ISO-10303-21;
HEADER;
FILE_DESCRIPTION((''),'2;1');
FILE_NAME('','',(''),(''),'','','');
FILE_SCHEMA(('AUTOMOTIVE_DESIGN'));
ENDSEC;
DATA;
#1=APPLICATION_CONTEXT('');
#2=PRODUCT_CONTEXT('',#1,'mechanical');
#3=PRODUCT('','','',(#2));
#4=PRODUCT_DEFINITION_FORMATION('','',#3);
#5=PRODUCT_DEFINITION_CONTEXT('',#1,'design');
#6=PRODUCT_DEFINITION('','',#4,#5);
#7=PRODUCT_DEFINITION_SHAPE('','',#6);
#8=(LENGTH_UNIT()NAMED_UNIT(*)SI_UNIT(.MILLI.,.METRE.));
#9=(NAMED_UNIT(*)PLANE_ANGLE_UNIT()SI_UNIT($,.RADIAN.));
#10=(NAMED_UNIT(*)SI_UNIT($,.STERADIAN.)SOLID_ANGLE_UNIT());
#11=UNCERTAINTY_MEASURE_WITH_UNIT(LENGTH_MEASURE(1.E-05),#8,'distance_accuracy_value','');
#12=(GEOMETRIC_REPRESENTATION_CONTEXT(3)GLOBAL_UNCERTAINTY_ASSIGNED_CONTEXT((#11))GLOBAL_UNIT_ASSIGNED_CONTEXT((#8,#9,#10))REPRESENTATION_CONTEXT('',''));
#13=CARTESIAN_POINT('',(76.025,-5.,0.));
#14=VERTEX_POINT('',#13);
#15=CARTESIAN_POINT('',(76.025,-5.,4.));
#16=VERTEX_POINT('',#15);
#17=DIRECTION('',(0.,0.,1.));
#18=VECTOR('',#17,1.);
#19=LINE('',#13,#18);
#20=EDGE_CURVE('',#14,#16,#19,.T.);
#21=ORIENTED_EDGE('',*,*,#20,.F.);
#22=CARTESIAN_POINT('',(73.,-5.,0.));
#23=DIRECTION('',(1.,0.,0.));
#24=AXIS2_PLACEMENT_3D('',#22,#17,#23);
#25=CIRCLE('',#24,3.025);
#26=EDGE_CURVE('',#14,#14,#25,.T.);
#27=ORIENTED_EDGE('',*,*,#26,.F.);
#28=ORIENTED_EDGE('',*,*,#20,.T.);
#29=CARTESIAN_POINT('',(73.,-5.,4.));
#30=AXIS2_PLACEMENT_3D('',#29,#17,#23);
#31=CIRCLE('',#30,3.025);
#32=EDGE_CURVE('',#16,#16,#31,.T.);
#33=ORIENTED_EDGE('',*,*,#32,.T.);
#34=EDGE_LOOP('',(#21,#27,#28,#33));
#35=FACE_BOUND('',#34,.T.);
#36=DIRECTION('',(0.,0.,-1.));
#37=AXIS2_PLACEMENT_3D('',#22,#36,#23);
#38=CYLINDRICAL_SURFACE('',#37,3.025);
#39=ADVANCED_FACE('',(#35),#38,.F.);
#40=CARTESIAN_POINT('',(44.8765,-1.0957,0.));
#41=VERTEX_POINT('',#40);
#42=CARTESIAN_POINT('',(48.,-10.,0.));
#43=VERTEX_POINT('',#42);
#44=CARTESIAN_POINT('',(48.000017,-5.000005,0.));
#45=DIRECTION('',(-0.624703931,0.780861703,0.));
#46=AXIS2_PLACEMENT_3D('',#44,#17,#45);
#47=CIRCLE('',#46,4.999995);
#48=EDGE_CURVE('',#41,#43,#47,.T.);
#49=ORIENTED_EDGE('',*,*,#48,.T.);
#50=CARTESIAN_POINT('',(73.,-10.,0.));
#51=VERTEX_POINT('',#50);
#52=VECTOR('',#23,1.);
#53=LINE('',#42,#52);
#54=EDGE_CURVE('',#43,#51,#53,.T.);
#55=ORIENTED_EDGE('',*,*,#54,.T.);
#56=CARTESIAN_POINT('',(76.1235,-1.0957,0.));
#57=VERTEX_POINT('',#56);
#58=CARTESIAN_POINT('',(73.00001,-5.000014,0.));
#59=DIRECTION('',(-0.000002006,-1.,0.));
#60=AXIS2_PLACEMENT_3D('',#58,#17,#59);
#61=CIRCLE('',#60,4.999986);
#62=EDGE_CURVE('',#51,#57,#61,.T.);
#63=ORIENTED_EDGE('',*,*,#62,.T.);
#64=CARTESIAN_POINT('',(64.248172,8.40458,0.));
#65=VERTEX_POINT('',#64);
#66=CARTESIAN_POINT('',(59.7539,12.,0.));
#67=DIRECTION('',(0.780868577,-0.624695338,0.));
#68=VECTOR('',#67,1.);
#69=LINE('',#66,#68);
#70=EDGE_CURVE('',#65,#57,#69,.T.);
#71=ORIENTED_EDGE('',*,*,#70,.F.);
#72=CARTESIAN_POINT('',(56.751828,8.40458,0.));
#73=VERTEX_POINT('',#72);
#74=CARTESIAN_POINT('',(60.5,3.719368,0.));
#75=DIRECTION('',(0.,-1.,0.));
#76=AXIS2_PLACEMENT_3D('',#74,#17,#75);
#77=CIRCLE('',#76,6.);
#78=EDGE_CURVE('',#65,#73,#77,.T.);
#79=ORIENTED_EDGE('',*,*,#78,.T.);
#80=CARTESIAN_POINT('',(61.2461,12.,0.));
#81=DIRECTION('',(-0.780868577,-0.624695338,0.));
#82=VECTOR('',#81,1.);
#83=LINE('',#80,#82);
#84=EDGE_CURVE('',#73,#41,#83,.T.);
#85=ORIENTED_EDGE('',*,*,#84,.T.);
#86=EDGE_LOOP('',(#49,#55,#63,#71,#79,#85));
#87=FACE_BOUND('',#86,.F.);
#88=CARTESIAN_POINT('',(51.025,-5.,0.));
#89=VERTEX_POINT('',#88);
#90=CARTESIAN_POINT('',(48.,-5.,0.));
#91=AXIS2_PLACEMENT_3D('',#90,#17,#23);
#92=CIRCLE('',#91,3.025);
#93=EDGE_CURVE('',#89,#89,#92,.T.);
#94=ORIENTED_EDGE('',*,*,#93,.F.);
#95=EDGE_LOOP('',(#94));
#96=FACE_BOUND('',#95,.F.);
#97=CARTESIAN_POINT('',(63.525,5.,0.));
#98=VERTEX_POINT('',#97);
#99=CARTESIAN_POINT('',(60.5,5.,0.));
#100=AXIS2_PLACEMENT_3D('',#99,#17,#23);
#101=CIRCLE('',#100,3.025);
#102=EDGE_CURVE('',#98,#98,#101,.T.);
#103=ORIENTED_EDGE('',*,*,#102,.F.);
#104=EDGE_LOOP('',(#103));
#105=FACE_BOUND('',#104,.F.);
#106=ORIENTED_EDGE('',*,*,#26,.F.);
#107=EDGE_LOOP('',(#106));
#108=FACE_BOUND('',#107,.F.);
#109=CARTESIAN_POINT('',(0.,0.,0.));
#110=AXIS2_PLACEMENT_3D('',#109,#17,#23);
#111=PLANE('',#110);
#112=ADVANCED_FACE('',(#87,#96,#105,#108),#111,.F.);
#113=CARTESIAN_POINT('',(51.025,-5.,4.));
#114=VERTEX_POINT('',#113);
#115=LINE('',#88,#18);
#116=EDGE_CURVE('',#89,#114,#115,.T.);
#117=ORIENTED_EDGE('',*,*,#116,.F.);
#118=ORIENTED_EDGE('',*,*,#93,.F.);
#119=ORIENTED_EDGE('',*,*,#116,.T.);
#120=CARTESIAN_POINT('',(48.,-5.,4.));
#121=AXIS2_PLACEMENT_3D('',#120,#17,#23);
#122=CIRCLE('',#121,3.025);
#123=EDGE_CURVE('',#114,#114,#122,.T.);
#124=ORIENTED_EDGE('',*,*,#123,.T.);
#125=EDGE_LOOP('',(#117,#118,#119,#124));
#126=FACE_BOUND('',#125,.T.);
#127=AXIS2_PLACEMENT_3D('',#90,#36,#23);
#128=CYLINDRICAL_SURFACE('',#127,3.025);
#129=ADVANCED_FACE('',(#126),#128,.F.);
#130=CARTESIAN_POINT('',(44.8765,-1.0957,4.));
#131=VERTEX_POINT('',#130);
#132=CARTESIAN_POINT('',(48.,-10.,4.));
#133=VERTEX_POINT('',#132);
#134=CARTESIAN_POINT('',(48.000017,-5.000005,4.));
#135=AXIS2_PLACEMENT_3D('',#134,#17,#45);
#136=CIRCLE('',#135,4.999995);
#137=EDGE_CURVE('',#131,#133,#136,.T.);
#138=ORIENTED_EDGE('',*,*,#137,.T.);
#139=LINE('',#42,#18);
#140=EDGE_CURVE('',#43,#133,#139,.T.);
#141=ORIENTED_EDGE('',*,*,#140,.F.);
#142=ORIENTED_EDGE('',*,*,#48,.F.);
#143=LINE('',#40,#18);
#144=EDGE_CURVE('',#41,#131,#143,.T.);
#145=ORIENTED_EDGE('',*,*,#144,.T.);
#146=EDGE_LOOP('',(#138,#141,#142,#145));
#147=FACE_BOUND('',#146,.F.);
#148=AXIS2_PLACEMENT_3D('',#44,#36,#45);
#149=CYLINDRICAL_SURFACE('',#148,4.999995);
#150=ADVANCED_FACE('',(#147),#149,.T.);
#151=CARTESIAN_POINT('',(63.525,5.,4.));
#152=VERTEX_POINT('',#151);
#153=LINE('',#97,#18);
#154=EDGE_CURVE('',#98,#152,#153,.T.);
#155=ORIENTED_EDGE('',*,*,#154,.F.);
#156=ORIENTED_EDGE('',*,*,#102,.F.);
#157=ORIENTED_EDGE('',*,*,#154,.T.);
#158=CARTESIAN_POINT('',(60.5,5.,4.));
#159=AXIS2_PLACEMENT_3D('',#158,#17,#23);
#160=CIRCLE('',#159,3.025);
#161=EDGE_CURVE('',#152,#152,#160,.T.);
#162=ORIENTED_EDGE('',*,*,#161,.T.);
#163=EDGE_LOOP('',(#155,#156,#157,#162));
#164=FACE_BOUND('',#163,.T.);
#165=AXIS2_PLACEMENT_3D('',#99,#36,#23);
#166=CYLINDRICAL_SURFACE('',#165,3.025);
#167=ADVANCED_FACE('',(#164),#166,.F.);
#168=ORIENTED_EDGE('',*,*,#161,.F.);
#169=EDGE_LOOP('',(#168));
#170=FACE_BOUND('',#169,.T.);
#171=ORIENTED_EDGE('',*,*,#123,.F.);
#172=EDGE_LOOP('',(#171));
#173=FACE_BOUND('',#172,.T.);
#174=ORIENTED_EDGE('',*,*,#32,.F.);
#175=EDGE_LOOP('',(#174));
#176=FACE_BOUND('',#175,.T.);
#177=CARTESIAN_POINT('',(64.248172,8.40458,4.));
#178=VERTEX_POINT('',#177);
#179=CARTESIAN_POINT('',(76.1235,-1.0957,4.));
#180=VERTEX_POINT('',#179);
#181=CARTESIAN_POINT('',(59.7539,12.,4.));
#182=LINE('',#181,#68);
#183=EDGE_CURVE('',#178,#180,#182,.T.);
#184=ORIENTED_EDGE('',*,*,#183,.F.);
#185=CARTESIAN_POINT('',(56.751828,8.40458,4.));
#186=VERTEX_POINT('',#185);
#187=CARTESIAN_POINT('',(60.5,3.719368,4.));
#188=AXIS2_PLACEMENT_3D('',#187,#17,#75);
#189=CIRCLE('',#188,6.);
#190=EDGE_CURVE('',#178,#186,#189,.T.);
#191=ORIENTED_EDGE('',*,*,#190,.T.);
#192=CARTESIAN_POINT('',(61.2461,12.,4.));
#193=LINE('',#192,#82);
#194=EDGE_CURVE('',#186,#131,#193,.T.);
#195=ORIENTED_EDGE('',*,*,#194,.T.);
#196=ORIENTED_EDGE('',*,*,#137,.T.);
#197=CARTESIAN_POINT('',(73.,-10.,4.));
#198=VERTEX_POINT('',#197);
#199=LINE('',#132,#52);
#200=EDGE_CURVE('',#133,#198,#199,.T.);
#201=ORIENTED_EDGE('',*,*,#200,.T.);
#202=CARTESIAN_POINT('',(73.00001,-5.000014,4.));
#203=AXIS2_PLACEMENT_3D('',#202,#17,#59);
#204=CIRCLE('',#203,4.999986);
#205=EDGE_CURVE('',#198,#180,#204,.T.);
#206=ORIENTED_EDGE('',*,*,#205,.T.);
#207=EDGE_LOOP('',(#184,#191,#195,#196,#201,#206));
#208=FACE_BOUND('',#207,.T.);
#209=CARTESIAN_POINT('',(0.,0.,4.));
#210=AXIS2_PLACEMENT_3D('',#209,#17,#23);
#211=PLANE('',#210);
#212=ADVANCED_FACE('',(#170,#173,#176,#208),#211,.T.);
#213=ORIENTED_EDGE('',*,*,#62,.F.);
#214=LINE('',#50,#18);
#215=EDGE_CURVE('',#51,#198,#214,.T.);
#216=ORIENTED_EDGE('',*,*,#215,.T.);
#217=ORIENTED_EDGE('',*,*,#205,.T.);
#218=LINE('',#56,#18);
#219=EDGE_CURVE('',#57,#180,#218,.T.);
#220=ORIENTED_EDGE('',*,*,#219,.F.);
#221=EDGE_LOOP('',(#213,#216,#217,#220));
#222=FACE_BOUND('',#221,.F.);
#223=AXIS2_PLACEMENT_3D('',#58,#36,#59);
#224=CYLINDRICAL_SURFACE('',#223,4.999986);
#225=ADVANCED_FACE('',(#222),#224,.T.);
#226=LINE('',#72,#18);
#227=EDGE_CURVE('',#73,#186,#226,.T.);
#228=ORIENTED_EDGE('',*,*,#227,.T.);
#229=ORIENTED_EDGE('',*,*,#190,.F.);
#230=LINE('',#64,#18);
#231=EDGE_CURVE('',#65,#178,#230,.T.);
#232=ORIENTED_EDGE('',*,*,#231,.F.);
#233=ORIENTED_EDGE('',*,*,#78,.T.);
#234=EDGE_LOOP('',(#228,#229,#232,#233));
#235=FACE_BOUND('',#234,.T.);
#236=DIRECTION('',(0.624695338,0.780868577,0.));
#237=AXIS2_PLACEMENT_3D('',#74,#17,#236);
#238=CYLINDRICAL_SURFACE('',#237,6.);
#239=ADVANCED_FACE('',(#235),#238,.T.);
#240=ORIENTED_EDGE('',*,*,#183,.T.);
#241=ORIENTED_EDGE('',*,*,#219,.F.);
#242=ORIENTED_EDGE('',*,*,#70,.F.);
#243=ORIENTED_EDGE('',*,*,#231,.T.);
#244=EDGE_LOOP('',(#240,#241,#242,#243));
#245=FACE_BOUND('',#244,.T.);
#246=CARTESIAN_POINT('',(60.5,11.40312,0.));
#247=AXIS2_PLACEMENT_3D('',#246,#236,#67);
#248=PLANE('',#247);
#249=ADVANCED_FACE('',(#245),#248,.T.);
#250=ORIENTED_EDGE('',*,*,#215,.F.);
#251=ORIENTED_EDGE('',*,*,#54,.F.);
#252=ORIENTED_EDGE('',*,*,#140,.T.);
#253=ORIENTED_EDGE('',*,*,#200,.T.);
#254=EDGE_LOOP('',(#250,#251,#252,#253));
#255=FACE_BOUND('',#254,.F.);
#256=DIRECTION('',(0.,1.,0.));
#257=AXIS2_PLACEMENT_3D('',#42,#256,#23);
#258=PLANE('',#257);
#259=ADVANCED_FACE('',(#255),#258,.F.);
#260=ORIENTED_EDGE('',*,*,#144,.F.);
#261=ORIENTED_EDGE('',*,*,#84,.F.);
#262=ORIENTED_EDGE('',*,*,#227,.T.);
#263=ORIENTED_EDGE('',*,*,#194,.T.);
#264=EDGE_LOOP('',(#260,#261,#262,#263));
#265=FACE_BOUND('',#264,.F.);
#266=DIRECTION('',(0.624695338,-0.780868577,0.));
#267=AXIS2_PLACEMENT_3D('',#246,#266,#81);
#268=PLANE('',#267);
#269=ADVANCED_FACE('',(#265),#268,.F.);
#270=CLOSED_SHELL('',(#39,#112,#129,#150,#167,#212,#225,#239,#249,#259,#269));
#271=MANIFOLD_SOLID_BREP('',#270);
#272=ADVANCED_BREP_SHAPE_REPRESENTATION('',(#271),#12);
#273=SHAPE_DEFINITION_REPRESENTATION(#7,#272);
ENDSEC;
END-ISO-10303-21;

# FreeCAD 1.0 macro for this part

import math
import FreeCAD as App
import Part
import Sketcher
from FreeCAD import Vector
Q = App.Units.Quantity


def edges_at(feature, points):
    """Names of the edges that pass closest to the given points."""
    edges = feature.Shape.Edges
    near = lambda p: min(range(len(edges)), key=lambda i: edges[i].distToShape(Part.Vertex(*p))[0])
    return sorted({f"Edge{near(p) + 1}" for p in points})

doc = App.newDocument("Part")
body = doc.addObject("PartDesign::Body", "Body")

# Sketch on XY plane
sketch1 = doc.addObject("Sketcher::SketchObject", "Sketch")
body.addObject(sketch1)
sketch1.AttachmentSupport = (doc.XY_Plane, [""])
sketch1.MapMode = "FlatFace"
sketch1.addGeometry([
    Part.LineSegment(Vector(76.1, -1.1, 0), Vector(60.5, 11.4, 0)),  # 0
    Part.LineSegment(Vector(60.5, 11.4, 0), Vector(44.9, -1.1, 0)),  # 1
    Part.ArcOfCircle(Part.Circle(Vector(48, -5, 0), Vector(0, 0, 1), 5), math.radians(129), math.radians(270)),  # 2
    Part.LineSegment(Vector(48, -10, 0), Vector(73, -10, 0)),  # 3
    Part.ArcOfCircle(Part.Circle(Vector(73, -5, 0), Vector(0, 0, 1), 5), math.radians(-90), math.radians(51)),  # 4
    Part.Circle(Vector(48, -5, 0), Vector(0, 0, 1), 3),  # 5
    Part.Circle(Vector(73, -5, 0), Vector(0, 0, 1), 3),  # 6
    Part.Circle(Vector(60.5, 5, 0), Vector(0, 0, 1), 3),  # 7
], False)
sketch1.addConstraint([
    Sketcher.Constraint("Coincident", 0, 2, 1, 1),
    Sketcher.Constraint("Tangent", 1, 2, 2, 1),
    Sketcher.Constraint("Tangent", 2, 2, 3, 1),
    Sketcher.Constraint("Tangent", 3, 2, 4, 1),
    Sketcher.Constraint("Tangent", 4, 2, 0, 1),
    Sketcher.Constraint("Horizontal", 3),
    Sketcher.Constraint("Coincident", 5, 3, 2, 3),
    Sketcher.Constraint("Coincident", 6, 3, 4, 3),
    Sketcher.Constraint("Equal", 2, 4),
    Sketcher.Constraint("Equal", 5, 6),
    Sketcher.Constraint("Equal", 6, 7),
    Sketcher.Constraint("Horizontal", 1, 2, 4, 2),
    Sketcher.Constraint("Vertical", 7, 3, 0, 2),
    Sketcher.Constraint("Radius", 2, Q("5 mm")),
    Sketcher.Constraint("Diameter", 5, Q("6.05 mm")),
    Sketcher.Constraint("DistanceX", 3, 1, 3, 2, Q("25 mm")),
    Sketcher.Constraint("DistanceY", 2, 3, -1, 1, Q("5 mm")),
    Sketcher.Constraint("DistanceY", -1, 1, 7, 3, Q("5 mm")),
    Sketcher.Constraint("DistanceX", -1, 1, 2, 3, Q("48 mm")),
    Sketcher.Constraint("Angle", 0, Q("141.3402 deg")),
])
pad1 = doc.addObject("PartDesign::Pad", "Pad")
body.addObject(pad1)
pad1.Profile = sketch1
pad1.Length = 4
doc.recompute()

fillet = doc.addObject("PartDesign::Fillet", "Fillet")
body.addObject(fillet)
fillet.Base = (pad1, edges_at(pad1, [(60.5, 11.403, 2)]))
fillet.Radius = 6

doc.recompute()
